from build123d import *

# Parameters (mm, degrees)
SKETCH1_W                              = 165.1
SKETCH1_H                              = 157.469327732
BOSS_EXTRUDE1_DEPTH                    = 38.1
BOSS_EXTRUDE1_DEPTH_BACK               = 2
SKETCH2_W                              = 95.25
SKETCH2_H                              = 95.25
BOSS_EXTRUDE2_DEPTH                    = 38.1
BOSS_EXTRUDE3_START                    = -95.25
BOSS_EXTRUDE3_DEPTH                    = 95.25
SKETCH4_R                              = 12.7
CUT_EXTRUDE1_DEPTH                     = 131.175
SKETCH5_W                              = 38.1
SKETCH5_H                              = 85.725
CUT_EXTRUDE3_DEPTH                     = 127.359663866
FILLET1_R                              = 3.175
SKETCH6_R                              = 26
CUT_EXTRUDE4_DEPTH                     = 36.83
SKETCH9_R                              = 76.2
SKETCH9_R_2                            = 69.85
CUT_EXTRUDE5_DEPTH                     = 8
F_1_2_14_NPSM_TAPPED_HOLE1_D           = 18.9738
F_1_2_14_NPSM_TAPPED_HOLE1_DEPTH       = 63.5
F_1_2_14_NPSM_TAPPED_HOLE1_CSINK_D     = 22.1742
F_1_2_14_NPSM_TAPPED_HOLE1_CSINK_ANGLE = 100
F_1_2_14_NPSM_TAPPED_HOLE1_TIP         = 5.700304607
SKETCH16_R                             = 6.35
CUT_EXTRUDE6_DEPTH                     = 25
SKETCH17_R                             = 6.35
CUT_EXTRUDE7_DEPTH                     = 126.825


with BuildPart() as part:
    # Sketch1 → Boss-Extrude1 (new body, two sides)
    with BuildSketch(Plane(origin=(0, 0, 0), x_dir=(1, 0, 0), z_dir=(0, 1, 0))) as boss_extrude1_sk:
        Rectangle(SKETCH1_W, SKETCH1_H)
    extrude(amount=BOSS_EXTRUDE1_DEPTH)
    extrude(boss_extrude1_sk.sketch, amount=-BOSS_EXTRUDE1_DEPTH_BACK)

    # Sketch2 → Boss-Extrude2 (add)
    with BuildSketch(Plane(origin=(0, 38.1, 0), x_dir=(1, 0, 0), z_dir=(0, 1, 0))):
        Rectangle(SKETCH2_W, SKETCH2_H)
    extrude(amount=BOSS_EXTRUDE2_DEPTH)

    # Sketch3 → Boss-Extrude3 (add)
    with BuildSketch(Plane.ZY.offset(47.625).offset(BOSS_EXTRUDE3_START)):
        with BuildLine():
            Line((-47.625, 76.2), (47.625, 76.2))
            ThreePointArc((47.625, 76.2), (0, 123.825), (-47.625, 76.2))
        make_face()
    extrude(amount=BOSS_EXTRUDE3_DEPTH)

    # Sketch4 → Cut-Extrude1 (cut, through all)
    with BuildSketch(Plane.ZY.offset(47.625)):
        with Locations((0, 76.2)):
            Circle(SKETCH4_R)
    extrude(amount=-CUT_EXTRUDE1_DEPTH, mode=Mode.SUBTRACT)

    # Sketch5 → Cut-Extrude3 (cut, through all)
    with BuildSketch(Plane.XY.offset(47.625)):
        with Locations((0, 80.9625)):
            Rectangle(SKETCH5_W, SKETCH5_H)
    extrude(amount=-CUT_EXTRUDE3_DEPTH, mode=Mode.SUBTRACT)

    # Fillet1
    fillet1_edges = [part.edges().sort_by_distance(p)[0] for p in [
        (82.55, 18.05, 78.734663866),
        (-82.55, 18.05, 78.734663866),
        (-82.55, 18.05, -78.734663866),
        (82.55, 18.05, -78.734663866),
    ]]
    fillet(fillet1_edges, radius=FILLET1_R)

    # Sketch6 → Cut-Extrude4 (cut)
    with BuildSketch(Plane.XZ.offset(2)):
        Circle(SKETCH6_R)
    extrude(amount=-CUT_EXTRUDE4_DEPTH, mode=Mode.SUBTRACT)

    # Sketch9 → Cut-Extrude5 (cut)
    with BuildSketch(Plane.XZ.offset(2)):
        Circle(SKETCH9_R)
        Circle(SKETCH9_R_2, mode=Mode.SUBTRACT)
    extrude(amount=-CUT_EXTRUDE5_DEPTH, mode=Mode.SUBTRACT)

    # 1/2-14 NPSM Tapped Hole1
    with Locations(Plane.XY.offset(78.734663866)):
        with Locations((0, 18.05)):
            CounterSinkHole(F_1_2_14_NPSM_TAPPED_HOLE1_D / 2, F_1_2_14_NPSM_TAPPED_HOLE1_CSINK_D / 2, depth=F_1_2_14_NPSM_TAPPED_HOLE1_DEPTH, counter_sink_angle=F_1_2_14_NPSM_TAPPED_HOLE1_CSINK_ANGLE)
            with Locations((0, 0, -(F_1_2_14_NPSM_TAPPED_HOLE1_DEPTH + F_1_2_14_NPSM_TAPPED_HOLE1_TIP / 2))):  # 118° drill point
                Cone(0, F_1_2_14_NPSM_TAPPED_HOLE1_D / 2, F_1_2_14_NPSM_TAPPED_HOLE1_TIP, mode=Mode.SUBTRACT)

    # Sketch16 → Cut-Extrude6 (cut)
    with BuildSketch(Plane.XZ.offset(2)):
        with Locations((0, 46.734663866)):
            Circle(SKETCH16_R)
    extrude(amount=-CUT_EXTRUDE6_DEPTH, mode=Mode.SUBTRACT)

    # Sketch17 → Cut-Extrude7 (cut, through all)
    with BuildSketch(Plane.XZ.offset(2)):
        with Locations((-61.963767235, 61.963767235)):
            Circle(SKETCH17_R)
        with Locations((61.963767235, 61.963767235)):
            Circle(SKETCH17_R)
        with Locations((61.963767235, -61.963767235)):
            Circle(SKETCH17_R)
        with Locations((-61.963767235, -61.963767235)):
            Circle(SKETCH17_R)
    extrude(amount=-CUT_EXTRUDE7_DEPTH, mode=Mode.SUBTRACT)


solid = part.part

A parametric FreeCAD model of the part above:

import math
import FreeCAD as App
import Part
import Sketcher

V = App.Vector
Q = App.Units.Quantity


def edges_at(feature, points):
    """Names of the edges that pass closest to the given points."""
    edges = feature.Shape.Edges
    near = lambda p: min(range(len(edges)), key=lambda i: edges[i].distToShape(Part.Vertex(*p))[0])
    return sorted({f"Edge{near(p) + 1}" for p in points})

doc = App.newDocument("Part")
body = doc.addObject("PartDesign::Body", "Body")

sketch1 = body.newObject("Sketcher::SketchObject", "Sketch")
sketch1.AttachmentSupport = (doc.getObject("XZ_Plane"), [""])
sketch1.MapMode = "FlatFace"
sketch1.addGeometry([
    Part.LineSegment(V(-83, -79, 0), V(-83, 79, 0)),
    Part.LineSegment(V(-83, 79, 0), V(83, 79, 0)),
    Part.LineSegment(V(83, 79, 0), V(83, -79, 0)),
    Part.LineSegment(V(83, -79, 0), V(-83, -79, 0)),
], False)
sketch1.addConstraint([
    Sketcher.Constraint("Coincident", 0, 2, 1, 1),
    Sketcher.Constraint("Coincident", 1, 2, 2, 1),
    Sketcher.Constraint("Coincident", 2, 2, 3, 1),
    Sketcher.Constraint("Coincident", 3, 2, 0, 1),
    Sketcher.Constraint("Vertical", 0),
    Sketcher.Constraint("Horizontal", 1),
    Sketcher.Constraint("Vertical", 2),
    Sketcher.Constraint("Horizontal", 3),
    Sketcher.Constraint("Symmetric", 0, 2, 2, 2, -1, 1),
    Sketcher.Constraint("DistanceX", 1, 1, 1, 2, Q("6.5 in")),
    Sketcher.Constraint("DistanceY", 0, 1, 0, 2, 157.469328),
])
pad1 = body.newObject("PartDesign::Pad", "Pad")
pad1.Profile = sketch1
pad1.Type = "TwoLengths"
pad1.Length = Q("1.5 in")
pad1.Length2 = 2
pad1.Reversed = True

sketch2 = body.newObject("Sketcher::SketchObject", "Sketch001")
sketch2.AttachmentSupport = (doc.getObject("XZ_Plane"), [""])
sketch2.MapMode = "FlatFace"
sketch2.AttachmentOffset = App.Placement(V(0, 0, -1.5 * 25.4), App.Rotation())
sketch2.addGeometry([
    Part.LineSegment(V(-48, -48, 0), V(-48, 48, 0)),
    Part.LineSegment(V(-48, 48, 0), V(48, 48, 0)),
    Part.LineSegment(V(48, 48, 0), V(48, -48, 0)),
    Part.LineSegment(V(48, -48, 0), V(-48, -48, 0)),
], False)
sketch2.addConstraint([
    Sketcher.Constraint("Coincident", 0, 2, 1, 1),
    Sketcher.Constraint("Coincident", 1, 2, 2, 1),
    Sketcher.Constraint("Coincident", 2, 2, 3, 1),
    Sketcher.Constraint("Coincident", 3, 2, 0, 1),
    Sketcher.Constraint("Vertical", 0),
    Sketcher.Constraint("Horizontal", 1),
    Sketcher.Constraint("Vertical", 2),
    Sketcher.Constraint("Horizontal", 3),
    Sketcher.Constraint("Symmetric", 0, 2, 2, 2, -1, 1),
    Sketcher.Constraint("Equal", 3, 0),
    Sketcher.Constraint("DistanceX", 1, 1, 1, 2, Q("3.75 in")),
])
pad2 = body.newObject("PartDesign::Pad", "Pad001")
pad2.Profile = sketch2
pad2.Length = Q("1.5 in")
pad2.Reversed = True

sketch3 = body.newObject("Sketcher::SketchObject", "Sketch002")
sketch3.AttachmentSupport = (doc.getObject("YZ_Plane"), [""])
sketch3.MapMode = "FlatFace"
sketch3.AttachmentOffset = App.Placement(V(0, 0, 1.875 * 25.4), App.Rotation())
sketch3.addGeometry([
    Part.LineSegment(V(76, -48, 0), V(76, 48, 0)),
    Part.ArcOfCircle(Part.Circle(V(76, 0, 0), V(0, 0, 1), 48), math.radians(-90), math.radians(90)),
], False)
sketch3.addConstraint([
    Sketcher.Constraint("Coincident", 0, 1, 1, 1),
    Sketcher.Constraint("Coincident", 1, 2, 0, 2),
    Sketcher.Constraint("Vertical", 0),
    Sketcher.Constraint("PointOnObject", 1, 3, -1),
    Sketcher.Constraint("Vertical", 1, 3, 0, 1),
    Sketcher.Constraint("DistanceX", -1, 1, 1, 3, Q("3 in")),
    Sketcher.Constraint("Radius", 1, Q("1.875 in")),
])
pad3 = body.newObject("PartDesign::Pad", "Pad002")
pad3.Profile = sketch3
pad3.Length = Q("3.75 in")
pad3.Reversed = True

sketch4 = body.newObject("Sketcher::SketchObject", "Sketch003")
sketch4.AttachmentSupport = (doc.getObject("YZ_Plane"), [""])
sketch4.MapMode = "FlatFace"
sketch4.AttachmentOffset = App.Placement(V(0, 0, -1.875 * 25.4), App.Rotation())
sketch4.addGeometry(Part.Circle(V(76, 0, 0), V(0, 0, 1), 13), False)
sketch4.addConstraint([
    Sketcher.Constraint("PointOnObject", 0, 3, -1),
    Sketcher.Constraint("Diameter", 0, Q("1 in")),
    Sketcher.Constraint("DistanceX", -1, 1, 0, 3, Q("3 in")),
])
pocket1 = body.newObject("PartDesign::Pocket", "Pocket")
pocket1.Profile = sketch4
pocket1.Type = "ThroughAll"
pocket1.Reversed = True

sketch5 = body.newObject("Sketcher::SketchObject", "Sketch004")
sketch5.AttachmentSupport = (doc.getObject("XY_Plane"), [""])
sketch5.MapMode = "FlatFace"
sketch5.AttachmentOffset = App.Placement(V(0, 0, 1.875 * 25.4), App.Rotation())
sketch5.addGeometry([
    Part.LineSegment(V(-19, 124, 0), V(-19, 38, 0)),
    Part.LineSegment(V(-19, 38, 0), V(19, 38, 0)),
    Part.LineSegment(V(19, 38, 0), V(19, 124, 0)),
    Part.LineSegment(V(19, 124, 0), V(-19, 124, 0)),
], False)
sketch5.addConstraint([
    Sketcher.Constraint("Coincident", 0, 2, 1, 1),
    Sketcher.Constraint("Coincident", 1, 2, 2, 1),
    Sketcher.Constraint("Coincident", 2, 2, 3, 1),
    Sketcher.Constraint("Coincident", 3, 2, 0, 1),
    Sketcher.Constraint("Vertical", 0),
    Sketcher.Constraint("Horizontal", 1),
    Sketcher.Constraint("Vertical", 2),
    Sketcher.Constraint("Horizontal", 3),
    Sketcher.Constraint("DistanceX", 1, 1, 1, 2, Q("1.5 in")),
    Sketcher.Constraint("DistanceY", -1, 1, 0, 2, Q("1.5 in")),
    Sketcher.Constraint("DistanceY", 0, 2, 0, 1, Q("3.375 in")),
    Sketcher.Constraint("DistanceX", 0, 2, -1, 1, Q("0.75 in")),
])
pocket2 = body.newObject("PartDesign::Pocket", "Pocket001")
pocket2.Profile = sketch5
pocket2.Type = "ThroughAll"
doc.recompute()

fillet = body.newObject("PartDesign::Fillet", "Fillet")
fillet.Base = (pocket2, edges_at(pocket2, [
    (82.55, 18.05, 78.735),
    (-82.55, 18.05, 78.735),
    (-82.55, 18.05, -78.735),
    (82.55, 18.05, -78.735),
]))
fillet.Radius = Q("0.125 in")

sketch6 = body.newObject("Sketcher::SketchObject", "Sketch005")
sketch6.AttachmentSupport = (doc.getObject("XZ_Plane"), [""])
sketch6.MapMode = "FlatFace"
sketch6.AttachmentOffset = App.Placement(V(0, 0, 2), App.Rotation())
sketch6.addGeometry(Part.Circle(V(0, 0, 0), V(0, 0, 1), 26), False)
sketch6.addConstraint([
    Sketcher.Constraint("Coincident", 0, 3, -1, 1),
    Sketcher.Constraint("Diameter", 0, 52.0),
])
pocket3 = body.newObject("PartDesign::Pocket", "Pocket002")
pocket3.Profile = sketch6
pocket3.Length = Q("1.45 in")

sketch7 = body.newObject("Sketcher::SketchObject", "Sketch006")
sketch7.AttachmentSupport = (doc.getObject("XZ_Plane"), [""])
sketch7.MapMode = "FlatFace"
sketch7.AttachmentOffset = App.Placement(V(0, 0, 2), App.Rotation())
sketch7.addGeometry([
    Part.Circle(V(0, 0, 0), V(0, 0, 1), 76),
    Part.Circle(V(0, 0, 0), V(0, 0, 1), 70),
], False)
sketch7.addConstraint([
    Sketcher.Constraint("Coincident", 0, 3, -1, 1),
    Sketcher.Constraint("Coincident", 1, 3, -1, 1),
    Sketcher.Constraint("Diameter", 0, Q("6 in")),
    Sketcher.Constraint("Diameter", 1, Q("5.5 in")),
])
pocket4 = body.newObject("PartDesign::Pocket", "Pocket003")
pocket4.Profile = sketch7
pocket4.Length = 8

sketch8 = body.newObject("Sketcher::SketchObject", "Sketch007")
sketch8.AttachmentSupport = (doc.getObject("XY_Plane"), [""])
sketch8.MapMode = "FlatFace"
sketch8.AttachmentOffset = App.Placement(V(0, 0, 78.734664), App.Rotation())
sketch8.addGeometry(Part.Circle(V(0, 18, 0), V(0, 0, 1), 9), False)
sketch8.addConstraint([
    Sketcher.Constraint("PointOnObject", 0, 3, -2),
    Sketcher.Constraint("Diameter", 0, Q("0.747 in")),
    Sketcher.Constraint("DistanceY", -1, 1, 0, 3, 18.05),
])
doc.recompute()
hole = body.newObject("PartDesign::Hole", "Hole")
hole.Profile = sketch8
hole.ThreadType = "None"
hole.Diameter = Q("0.747 in")
hole.DepthType = "Dimension"
hole.Depth = Q("2.5 in")
hole.DrillPoint = "Angled"
hole.DrillPointAngle = 118
hole.HoleCutType = "Countersink"
hole.HoleCutDiameter = Q("0.873 in")
hole.HoleCutCountersinkAngle = 100

sketch9 = body.newObject("Sketcher::SketchObject", "Sketch008")
sketch9.AttachmentSupport = (doc.getObject("XZ_Plane"), [""])
sketch9.MapMode = "FlatFace"
sketch9.AttachmentOffset = App.Placement(V(0, 0, 2), App.Rotation())
sketch9.addGeometry(Part.Circle(V(0, 47, 0), V(0, 0, 1), 6), False)
sketch9.addConstraint([
    Sketcher.Constraint("PointOnObject", 0, 3, -2),
    Sketcher.Constraint("Diameter", 0, Q("0.5 in")),
    Sketcher.Constraint("DistanceY", -1, 1, 0, 3, 46.734664),
])
pocket5 = body.newObject("PartDesign::Pocket", "Pocket004")
pocket5.Profile = sketch9
pocket5.Length = 25

sketch10 = body.newObject("Sketcher::SketchObject", "Sketch009")
sketch10.AttachmentSupport = (doc.getObject("XZ_Plane"), [""])
sketch10.MapMode = "FlatFace"
sketch10.AttachmentOffset = App.Placement(V(0, 0, 2), App.Rotation())
sketch10.addGeometry([
    Part.Circle(V(-62, 62, 0), V(0, 0, 1), 6),
    Part.Circle(V(62, 62, 0), V(0, 0, 1), 6),
    Part.Circle(V(62, -62, 0), V(0, 0, 1), 6),
    Part.Circle(V(-62, -62, 0), V(0, 0, 1), 6),
], False)
sketch10.addConstraint([
    Sketcher.Constraint("Equal", 0, 1),
    Sketcher.Constraint("Equal", 1, 2),
    Sketcher.Constraint("Equal", 2, 3),
    Sketcher.Constraint("Symmetric", 0, 3, 2, 3, -1, 1),
    Sketcher.Constraint("Symmetric", 1, 3, 3, 3, -1, 1),
    Sketcher.Constraint("Symmetric", 0, 3, 1, 3, -2),
    Sketcher.Constraint("Diameter", 0, Q("0.5 in")),
    Sketcher.Constraint("DistanceX", 0, 3, -1, 1, 61.963767),
    Sketcher.Constraint("DistanceY", -1, 1, 0, 3, 61.963767),
])
pocket6 = body.newObject("PartDesign::Pocket", "Pocket005")
pocket6.Profile = sketch10
pocket6.Type = "ThroughAll"

doc.recompute()
